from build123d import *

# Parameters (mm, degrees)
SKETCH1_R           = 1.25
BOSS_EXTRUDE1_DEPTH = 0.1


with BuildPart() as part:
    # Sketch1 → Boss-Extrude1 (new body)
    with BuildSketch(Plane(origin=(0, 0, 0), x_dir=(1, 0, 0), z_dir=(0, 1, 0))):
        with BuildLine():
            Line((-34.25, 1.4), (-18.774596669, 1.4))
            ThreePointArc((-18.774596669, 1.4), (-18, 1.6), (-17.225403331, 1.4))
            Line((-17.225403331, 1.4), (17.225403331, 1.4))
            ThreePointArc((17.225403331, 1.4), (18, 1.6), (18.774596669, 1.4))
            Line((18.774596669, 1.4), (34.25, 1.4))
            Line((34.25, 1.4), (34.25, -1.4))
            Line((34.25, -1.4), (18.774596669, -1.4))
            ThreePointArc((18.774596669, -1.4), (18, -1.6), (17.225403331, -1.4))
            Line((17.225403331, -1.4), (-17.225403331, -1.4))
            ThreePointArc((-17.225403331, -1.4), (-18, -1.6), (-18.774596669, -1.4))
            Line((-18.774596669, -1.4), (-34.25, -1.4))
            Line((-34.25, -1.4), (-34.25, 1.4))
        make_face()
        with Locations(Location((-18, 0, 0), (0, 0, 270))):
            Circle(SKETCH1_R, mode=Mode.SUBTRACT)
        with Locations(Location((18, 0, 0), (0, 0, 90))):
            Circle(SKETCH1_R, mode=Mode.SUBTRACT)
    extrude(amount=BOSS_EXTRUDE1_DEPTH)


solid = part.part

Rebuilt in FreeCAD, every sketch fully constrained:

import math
import FreeCAD as App
import Part
import Sketcher
Q = App.Units.Quantity

doc = App.newDocument("Part")
body = doc.addObject("PartDesign::Body", "Body")

sketch1 = body.newObject("Sketcher::SketchObject", "Sketch")
sketch1.AttachmentSupport = (doc.getObject("XZ_Plane"), [""])
sketch1.MapMode = "FlatFace"
sketch1.addGeometry([
    Part.LineSegment(App.Vector(-18.774597, -1.4, 0), App.Vector(-34.25, -1.4, 0)),
    Part.LineSegment(App.Vector(-34.25, -1.4, 0), App.Vector(-34.25, 1.4, 0)),
    Part.LineSegment(App.Vector(-34.25, 1.4, 0), App.Vector(-18.774597, 1.4, 0)),
    Part.ArcOfCircle(Part.Circle(App.Vector(-18, 0, 0), App.Vector(0, 0, 1), 1.6), math.radians(61.044976), math.radians(118.955024)),
    Part.LineSegment(App.Vector(-17.225403, 1.4, 0), App.Vector(17.225403, 1.4, 0)),
    Part.ArcOfCircle(Part.Circle(App.Vector(18, 0, 0), App.Vector(0, 0, 1), 1.6), math.radians(61.044976), math.radians(118.955024)),
    Part.LineSegment(App.Vector(18.774597, 1.4, 0), App.Vector(34.25, 1.4, 0)),
    Part.LineSegment(App.Vector(34.25, 1.4, 0), App.Vector(34.25, -1.4, 0)),
    Part.LineSegment(App.Vector(34.25, -1.4, 0), App.Vector(18.774597, -1.4, 0)),
    Part.ArcOfCircle(Part.Circle(App.Vector(18, 0, 0), App.Vector(0, 0, 1), 1.6), math.radians(-118.955024), math.radians(-61.044976)),
    Part.LineSegment(App.Vector(17.225403, -1.4, 0), App.Vector(-17.225403, -1.4, 0)),
    Part.ArcOfCircle(Part.Circle(App.Vector(-18, 0, 0), App.Vector(0, 0, 1), 1.6), math.radians(-118.955024), math.radians(-61.044976)),
    Part.Circle(App.Vector(18, 0, 0), App.Vector(0, 0, 1), 1.25),
    Part.Circle(App.Vector(-18, 0, 0), App.Vector(0, 0, 1), 1.25),
], False)
sketch1.addConstraint([
    Sketcher.Constraint("Coincident", 0, 2, 1, 1),
    Sketcher.Constraint("Coincident", 1, 2, 2, 1),
    Sketcher.Constraint("Coincident", 2, 2, 3, 2),
    Sketcher.Constraint("Coincident", 3, 1, 4, 1),
    Sketcher.Constraint("Coincident", 4, 2, 5, 2),
    Sketcher.Constraint("Coincident", 5, 1, 6, 1),
    Sketcher.Constraint("Coincident", 6, 2, 7, 1),
    Sketcher.Constraint("Coincident", 7, 2, 8, 1),
    Sketcher.Constraint("Coincident", 8, 2, 9, 2),
    Sketcher.Constraint("Coincident", 9, 1, 10, 1),
    Sketcher.Constraint("Coincident", 10, 2, 11, 2),
    Sketcher.Constraint("Coincident", 11, 1, 0, 1),
    Sketcher.Constraint("Horizontal", 0),
    Sketcher.Constraint("Vertical", 1),
    Sketcher.Constraint("Horizontal", 2),
    Sketcher.Constraint("Horizontal", 4),
    Sketcher.Constraint("Horizontal", 6),
    Sketcher.Constraint("Vertical", 7),
    Sketcher.Constraint("Horizontal", 8),
    Sketcher.Constraint("Horizontal", 10),
    Sketcher.Constraint("Coincident", 9, 3, 5, 3),
    Sketcher.Constraint("Coincident", 11, 3, 3, 3),
    Sketcher.Constraint("Coincident", 12, 3, 5, 3),
    Sketcher.Constraint("Coincident", 13, 3, 3, 3),
    Sketcher.Constraint("Equal", 3, 5),
    Sketcher.Constraint("Equal", 5, 9),
    Sketcher.Constraint("Equal", 9, 11),
    Sketcher.Constraint("Equal", 12, 13),
    Sketcher.Constraint("Symmetric", 3, 3, 5, 3, -1, 1),
    Sketcher.Constraint("Symmetric", 0, 2, 6, 2, -1, 1),
    Sketcher.Constraint("Symmetric", 2, 2, 5, 1, -2),
    Sketcher.Constraint("Horizontal", 2, 2, 3, 1),
    Sketcher.Constraint("Horizontal", 0, 2, 7, 2),
    Sketcher.Constraint("Horizontal", 8, 2, 9, 1),
    Sketcher.Constraint("Diameter", 12, Q("2.5 mm")),
    Sketcher.Constraint("Radius", 3, Q("1.6 mm")),
    Sketcher.Constraint("DistanceY", 1, 1, 1, 2, Q("2.8 mm")),
    Sketcher.Constraint("DistanceX", 3, 3, -1, 1, Q("18 mm")),
    Sketcher.Constraint("DistanceX", 0, 2, -1, 1, Q("34.25 mm")),
])
pad1 = body.newObject("PartDesign::Pad", "Pad")
pad1.Profile = sketch1
pad1.Length = 0.1
pad1.Reversed = True

doc.recompute()
